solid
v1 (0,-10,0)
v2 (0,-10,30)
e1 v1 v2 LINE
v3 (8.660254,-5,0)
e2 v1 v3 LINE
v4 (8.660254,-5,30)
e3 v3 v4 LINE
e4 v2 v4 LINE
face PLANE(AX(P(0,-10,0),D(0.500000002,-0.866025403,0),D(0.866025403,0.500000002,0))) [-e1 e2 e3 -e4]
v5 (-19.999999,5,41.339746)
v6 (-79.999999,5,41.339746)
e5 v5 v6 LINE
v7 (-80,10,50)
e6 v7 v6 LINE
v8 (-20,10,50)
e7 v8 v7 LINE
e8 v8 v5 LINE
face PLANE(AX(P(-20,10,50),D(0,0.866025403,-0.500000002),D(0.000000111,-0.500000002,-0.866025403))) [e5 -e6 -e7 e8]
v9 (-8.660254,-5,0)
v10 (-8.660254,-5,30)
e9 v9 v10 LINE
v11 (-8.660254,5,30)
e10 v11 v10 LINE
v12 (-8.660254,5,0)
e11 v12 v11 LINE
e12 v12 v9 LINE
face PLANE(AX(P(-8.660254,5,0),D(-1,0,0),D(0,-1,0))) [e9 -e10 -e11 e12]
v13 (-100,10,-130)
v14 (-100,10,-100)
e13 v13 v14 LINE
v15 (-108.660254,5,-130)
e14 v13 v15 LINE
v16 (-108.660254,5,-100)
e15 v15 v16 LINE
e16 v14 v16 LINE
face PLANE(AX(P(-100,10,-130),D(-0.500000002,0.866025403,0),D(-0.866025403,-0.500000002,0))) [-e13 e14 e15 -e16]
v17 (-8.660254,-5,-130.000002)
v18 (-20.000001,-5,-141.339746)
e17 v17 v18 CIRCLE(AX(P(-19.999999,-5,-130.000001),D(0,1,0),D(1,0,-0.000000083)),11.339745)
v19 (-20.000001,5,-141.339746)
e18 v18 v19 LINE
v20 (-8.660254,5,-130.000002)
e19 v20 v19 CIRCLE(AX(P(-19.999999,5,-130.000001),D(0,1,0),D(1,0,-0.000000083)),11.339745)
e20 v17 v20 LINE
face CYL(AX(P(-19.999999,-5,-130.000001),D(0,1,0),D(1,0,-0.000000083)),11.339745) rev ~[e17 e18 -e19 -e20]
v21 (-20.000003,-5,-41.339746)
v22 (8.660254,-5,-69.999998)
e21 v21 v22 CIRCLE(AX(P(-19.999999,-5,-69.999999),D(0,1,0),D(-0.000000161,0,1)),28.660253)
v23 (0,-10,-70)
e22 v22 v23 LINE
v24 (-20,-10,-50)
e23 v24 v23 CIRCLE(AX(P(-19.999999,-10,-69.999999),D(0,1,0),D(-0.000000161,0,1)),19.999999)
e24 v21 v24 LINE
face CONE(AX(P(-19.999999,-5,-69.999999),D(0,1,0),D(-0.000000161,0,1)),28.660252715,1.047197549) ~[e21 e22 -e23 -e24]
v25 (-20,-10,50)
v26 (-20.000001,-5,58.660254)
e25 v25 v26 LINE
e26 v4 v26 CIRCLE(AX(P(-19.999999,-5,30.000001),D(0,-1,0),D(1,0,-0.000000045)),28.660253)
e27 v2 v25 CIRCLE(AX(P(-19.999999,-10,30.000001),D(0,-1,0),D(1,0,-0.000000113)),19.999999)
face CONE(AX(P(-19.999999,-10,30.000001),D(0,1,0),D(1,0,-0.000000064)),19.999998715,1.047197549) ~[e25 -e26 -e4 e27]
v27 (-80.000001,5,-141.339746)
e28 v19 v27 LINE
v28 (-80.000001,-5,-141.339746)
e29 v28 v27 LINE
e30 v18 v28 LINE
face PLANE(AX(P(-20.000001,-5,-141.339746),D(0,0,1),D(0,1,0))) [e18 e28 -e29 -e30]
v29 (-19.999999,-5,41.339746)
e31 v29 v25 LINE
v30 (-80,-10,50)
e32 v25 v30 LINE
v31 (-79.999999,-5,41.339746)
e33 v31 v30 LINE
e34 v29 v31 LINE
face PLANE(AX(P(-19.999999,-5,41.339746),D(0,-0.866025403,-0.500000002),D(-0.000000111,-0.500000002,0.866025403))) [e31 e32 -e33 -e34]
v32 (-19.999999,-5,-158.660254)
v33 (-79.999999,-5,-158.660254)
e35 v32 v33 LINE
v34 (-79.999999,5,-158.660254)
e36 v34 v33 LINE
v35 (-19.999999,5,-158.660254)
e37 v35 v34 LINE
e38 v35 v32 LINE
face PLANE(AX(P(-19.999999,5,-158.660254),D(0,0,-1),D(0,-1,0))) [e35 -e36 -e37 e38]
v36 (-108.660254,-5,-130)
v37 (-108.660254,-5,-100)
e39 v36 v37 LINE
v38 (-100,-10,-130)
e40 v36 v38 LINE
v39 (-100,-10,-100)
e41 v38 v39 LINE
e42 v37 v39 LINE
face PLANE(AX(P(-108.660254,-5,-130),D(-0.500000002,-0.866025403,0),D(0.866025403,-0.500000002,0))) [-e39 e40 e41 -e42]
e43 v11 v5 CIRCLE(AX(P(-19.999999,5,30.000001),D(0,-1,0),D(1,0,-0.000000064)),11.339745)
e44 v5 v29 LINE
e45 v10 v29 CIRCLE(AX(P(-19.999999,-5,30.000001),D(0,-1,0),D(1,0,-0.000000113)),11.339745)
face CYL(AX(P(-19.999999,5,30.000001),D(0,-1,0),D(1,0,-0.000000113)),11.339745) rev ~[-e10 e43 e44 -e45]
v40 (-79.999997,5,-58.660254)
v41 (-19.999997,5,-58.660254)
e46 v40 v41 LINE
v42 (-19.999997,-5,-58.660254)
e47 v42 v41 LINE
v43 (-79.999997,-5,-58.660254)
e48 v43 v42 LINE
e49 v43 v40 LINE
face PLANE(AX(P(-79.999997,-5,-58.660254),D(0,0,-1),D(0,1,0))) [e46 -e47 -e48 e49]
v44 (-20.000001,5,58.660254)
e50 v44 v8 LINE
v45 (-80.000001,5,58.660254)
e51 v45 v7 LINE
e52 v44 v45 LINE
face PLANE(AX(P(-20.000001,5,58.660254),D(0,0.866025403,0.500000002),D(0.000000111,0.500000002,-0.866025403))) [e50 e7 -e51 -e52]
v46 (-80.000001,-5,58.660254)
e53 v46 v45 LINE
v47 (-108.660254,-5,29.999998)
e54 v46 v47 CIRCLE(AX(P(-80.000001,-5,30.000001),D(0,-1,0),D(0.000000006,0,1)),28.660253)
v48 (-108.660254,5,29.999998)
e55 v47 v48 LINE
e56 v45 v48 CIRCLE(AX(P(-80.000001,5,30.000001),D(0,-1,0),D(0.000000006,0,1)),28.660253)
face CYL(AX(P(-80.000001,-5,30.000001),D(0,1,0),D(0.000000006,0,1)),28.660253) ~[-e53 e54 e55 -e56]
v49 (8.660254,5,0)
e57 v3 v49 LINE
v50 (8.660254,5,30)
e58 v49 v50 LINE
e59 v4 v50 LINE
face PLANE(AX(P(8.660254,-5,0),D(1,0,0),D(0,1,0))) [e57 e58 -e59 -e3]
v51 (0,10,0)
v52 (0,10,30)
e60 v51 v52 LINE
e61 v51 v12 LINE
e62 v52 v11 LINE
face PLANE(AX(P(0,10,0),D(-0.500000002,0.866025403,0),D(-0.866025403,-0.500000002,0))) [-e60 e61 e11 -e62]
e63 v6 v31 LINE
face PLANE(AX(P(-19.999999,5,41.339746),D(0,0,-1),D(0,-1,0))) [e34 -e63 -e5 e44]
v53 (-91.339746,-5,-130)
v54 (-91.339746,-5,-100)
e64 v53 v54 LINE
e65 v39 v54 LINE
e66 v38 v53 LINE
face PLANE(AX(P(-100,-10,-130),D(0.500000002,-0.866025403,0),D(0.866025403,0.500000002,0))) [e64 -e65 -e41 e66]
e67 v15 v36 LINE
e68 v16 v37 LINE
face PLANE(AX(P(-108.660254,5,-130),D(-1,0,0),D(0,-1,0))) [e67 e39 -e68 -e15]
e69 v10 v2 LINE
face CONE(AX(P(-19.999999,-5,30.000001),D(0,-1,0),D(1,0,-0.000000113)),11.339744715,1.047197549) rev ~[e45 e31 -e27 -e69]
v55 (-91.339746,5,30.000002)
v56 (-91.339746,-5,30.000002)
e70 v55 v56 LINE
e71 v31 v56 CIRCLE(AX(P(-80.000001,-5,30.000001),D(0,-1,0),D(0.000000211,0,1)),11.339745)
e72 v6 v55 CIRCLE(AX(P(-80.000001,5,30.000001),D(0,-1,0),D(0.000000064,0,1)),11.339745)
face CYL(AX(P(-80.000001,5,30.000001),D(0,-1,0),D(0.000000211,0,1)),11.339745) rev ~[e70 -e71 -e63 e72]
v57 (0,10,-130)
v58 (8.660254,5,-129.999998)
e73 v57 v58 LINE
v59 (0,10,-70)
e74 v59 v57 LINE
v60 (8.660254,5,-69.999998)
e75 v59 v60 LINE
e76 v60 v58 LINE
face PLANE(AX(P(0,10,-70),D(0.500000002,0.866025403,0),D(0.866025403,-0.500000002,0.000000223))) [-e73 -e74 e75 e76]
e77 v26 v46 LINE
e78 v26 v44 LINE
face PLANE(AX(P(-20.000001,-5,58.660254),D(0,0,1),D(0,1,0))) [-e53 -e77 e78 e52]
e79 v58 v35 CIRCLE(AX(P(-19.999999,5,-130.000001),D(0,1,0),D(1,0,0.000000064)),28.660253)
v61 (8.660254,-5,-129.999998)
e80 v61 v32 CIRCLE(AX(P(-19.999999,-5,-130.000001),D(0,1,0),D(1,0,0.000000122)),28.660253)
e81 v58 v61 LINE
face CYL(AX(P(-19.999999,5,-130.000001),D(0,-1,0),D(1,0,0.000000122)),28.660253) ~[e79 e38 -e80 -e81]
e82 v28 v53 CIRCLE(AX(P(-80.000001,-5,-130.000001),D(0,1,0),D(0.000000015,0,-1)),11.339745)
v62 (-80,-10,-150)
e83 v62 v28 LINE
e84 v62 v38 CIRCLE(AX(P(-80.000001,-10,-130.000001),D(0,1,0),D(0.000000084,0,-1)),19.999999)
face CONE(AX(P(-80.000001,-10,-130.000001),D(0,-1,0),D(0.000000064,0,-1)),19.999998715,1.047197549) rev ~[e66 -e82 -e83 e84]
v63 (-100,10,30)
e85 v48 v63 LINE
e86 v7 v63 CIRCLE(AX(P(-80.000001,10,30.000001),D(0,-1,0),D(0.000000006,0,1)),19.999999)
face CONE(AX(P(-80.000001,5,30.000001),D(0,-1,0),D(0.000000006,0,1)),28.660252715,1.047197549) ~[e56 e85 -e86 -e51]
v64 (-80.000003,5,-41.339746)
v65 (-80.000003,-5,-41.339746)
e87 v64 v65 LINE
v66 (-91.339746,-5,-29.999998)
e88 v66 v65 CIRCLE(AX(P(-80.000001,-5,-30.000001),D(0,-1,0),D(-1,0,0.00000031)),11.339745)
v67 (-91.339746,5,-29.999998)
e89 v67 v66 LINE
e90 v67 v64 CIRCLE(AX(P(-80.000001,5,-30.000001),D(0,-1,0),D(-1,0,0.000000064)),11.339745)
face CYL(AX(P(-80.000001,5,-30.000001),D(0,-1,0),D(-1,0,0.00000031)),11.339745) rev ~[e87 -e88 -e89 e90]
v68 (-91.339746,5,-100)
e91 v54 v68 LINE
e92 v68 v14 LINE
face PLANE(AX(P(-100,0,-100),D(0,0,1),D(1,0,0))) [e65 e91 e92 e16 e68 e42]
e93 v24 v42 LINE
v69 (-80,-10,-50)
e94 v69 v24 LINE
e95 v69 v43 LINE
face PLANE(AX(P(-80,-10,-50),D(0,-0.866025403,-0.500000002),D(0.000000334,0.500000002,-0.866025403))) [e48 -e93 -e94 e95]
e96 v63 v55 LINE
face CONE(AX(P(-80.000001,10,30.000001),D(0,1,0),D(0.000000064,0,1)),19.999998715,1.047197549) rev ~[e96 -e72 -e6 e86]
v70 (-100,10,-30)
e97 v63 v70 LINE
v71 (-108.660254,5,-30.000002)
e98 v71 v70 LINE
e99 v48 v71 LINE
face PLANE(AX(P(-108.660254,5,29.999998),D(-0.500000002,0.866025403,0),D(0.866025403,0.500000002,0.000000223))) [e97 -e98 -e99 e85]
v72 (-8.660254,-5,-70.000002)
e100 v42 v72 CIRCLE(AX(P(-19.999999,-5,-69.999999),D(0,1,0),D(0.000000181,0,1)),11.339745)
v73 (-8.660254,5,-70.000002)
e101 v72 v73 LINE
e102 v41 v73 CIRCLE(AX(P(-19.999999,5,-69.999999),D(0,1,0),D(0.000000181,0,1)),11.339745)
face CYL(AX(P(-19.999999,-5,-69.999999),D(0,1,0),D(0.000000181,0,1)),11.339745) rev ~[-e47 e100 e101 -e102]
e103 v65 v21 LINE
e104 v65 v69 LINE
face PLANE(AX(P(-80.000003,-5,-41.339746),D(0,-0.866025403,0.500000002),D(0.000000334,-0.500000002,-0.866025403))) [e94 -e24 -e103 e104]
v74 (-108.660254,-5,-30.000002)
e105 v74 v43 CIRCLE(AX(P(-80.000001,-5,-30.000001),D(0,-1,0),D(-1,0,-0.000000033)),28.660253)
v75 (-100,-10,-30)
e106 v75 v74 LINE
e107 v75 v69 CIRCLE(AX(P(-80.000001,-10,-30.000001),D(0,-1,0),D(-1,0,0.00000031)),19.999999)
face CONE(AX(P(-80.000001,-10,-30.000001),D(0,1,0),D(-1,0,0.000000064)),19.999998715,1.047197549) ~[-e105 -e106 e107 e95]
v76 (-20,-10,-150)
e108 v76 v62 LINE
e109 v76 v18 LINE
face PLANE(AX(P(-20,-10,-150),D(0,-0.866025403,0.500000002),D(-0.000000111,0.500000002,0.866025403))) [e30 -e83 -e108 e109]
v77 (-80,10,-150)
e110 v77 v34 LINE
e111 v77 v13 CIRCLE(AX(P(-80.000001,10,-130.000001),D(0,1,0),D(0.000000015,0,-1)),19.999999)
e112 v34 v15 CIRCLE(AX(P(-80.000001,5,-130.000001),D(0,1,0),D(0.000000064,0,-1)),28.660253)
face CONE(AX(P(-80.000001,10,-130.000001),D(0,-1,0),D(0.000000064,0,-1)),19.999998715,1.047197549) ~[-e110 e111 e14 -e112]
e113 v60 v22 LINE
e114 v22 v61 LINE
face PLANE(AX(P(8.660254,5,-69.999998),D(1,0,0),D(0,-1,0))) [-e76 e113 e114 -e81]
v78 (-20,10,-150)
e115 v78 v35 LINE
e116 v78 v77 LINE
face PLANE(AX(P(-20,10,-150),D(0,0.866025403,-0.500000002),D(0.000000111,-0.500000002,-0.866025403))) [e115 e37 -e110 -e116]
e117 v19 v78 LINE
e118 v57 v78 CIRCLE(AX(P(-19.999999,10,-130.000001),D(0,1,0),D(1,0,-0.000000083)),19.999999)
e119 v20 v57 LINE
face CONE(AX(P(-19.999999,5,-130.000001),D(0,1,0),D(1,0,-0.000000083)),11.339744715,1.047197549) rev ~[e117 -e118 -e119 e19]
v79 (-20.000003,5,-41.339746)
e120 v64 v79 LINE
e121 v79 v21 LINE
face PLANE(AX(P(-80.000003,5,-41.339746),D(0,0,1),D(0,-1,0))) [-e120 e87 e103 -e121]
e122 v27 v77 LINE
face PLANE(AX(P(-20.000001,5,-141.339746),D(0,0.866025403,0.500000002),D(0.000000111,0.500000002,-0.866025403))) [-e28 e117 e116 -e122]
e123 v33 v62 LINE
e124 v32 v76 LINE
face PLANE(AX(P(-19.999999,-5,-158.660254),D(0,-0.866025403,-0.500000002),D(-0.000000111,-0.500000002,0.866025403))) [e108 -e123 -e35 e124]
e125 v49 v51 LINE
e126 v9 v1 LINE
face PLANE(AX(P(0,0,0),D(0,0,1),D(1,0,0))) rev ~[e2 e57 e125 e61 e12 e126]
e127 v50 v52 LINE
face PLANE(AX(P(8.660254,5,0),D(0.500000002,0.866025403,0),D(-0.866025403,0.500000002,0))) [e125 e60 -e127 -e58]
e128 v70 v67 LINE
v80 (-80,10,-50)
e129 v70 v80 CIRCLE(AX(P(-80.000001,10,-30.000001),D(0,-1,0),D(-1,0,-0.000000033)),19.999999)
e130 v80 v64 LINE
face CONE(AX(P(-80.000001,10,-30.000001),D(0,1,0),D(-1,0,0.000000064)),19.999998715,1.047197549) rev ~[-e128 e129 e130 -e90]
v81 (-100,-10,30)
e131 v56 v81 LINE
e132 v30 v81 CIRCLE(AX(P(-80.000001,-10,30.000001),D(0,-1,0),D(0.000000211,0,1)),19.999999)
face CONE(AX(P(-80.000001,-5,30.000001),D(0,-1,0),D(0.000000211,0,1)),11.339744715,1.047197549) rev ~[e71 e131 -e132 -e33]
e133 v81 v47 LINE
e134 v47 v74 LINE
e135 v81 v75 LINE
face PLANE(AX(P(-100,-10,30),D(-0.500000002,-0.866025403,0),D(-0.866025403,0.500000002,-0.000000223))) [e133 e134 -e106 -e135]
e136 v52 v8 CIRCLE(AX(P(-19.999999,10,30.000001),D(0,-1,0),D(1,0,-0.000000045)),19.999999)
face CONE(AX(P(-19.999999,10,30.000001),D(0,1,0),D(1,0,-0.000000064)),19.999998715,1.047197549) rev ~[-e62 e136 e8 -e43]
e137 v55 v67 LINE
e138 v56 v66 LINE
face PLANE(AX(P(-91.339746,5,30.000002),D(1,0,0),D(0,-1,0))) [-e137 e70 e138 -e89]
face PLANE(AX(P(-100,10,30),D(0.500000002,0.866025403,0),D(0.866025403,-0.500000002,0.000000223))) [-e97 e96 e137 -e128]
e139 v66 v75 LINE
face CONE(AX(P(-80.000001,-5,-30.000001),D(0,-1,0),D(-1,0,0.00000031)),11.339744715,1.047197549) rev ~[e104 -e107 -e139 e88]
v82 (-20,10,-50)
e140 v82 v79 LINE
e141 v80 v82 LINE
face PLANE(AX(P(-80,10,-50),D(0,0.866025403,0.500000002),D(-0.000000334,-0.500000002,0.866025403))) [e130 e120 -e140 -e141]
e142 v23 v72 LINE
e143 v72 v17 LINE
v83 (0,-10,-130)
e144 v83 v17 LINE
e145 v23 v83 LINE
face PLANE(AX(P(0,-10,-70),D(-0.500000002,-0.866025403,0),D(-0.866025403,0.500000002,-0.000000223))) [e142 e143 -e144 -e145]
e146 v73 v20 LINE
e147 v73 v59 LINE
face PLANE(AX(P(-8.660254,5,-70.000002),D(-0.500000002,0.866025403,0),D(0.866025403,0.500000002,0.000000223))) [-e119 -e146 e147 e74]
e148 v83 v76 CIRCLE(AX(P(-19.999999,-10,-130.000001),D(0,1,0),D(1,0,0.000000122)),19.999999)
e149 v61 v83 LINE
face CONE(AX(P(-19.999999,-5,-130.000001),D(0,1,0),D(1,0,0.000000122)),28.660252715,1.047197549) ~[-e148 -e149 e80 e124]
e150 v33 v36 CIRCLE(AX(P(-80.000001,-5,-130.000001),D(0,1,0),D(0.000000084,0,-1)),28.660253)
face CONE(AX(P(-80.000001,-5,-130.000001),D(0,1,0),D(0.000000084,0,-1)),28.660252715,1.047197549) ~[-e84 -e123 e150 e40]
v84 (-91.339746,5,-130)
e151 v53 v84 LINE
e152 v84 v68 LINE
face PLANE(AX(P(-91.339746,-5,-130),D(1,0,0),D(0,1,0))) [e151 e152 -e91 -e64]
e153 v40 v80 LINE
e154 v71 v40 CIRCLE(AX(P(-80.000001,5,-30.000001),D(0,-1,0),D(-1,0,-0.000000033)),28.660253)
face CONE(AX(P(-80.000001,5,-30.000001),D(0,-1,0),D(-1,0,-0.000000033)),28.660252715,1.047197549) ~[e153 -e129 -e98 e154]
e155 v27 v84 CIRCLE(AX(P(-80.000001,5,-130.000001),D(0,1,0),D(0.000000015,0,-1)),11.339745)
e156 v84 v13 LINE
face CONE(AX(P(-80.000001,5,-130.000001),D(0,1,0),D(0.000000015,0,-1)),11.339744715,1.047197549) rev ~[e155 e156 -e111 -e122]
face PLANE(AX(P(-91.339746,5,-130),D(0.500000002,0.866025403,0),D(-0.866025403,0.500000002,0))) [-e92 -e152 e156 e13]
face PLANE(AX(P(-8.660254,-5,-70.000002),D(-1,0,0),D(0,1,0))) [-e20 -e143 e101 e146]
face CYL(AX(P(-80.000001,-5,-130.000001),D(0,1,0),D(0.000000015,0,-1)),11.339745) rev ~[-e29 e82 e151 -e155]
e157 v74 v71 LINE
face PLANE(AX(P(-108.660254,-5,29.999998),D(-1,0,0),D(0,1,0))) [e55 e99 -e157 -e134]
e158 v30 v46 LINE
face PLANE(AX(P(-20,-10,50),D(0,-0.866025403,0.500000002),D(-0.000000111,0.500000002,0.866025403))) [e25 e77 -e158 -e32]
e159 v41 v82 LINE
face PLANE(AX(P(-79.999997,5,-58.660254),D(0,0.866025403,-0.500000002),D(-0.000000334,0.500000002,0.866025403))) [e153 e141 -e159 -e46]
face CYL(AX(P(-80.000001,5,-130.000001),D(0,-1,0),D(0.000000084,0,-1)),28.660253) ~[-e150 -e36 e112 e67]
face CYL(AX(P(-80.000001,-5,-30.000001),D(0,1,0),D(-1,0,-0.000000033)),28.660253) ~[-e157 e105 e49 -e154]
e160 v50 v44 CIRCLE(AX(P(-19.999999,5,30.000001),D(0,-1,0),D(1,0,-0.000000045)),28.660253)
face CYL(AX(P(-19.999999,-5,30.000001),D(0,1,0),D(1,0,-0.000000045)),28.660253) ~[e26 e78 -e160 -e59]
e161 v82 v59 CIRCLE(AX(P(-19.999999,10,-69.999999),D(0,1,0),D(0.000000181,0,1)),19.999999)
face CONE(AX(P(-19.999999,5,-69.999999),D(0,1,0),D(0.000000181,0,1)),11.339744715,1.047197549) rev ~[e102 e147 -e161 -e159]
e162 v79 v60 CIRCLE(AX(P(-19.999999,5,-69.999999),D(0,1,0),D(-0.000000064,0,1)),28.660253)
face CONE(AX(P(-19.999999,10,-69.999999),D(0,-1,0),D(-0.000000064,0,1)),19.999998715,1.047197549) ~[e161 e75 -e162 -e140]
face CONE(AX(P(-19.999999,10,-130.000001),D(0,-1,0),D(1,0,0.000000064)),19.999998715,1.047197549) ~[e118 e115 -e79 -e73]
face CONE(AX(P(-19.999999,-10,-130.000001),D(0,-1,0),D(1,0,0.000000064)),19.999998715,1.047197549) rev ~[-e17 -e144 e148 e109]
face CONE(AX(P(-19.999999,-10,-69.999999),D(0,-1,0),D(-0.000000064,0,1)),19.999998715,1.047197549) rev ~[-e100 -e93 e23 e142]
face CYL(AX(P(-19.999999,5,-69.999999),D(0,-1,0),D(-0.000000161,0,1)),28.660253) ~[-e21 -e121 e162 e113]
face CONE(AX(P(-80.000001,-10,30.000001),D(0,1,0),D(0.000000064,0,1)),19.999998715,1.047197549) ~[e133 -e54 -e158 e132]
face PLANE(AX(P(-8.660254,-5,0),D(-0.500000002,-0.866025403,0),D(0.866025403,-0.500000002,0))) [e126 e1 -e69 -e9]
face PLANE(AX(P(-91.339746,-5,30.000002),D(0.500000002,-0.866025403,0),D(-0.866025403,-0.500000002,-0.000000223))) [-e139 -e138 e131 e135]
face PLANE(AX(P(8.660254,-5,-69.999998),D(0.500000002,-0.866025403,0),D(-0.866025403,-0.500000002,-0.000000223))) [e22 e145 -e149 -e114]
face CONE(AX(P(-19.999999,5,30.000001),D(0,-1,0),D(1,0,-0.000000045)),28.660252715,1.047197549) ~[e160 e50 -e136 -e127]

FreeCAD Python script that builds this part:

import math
import FreeCAD as App
import Part
import Sketcher

V = App.Vector
Q = App.Units.Quantity


def add_polygon(sketch, points):
    """Adds a closed chain of lines whose ends are joined by coincident constraints."""
    first, n = sketch.GeometryCount, len(points)
    for a, b in zip(points, points[1:] + points[:1]):
        sketch.addGeometry(Part.LineSegment(App.Vector(*a, 0), App.Vector(*b, 0)), False)
    for i in range(n):
        sketch.addConstraint(Sketcher.Constraint("Coincident", first + i, 2, first + (i + 1) % n, 1))

doc = App.newDocument("Part")
body = doc.addObject("PartDesign::Body", "Body")

# Sketch on XY plane
sketch1 = doc.addObject("Sketcher::SketchObject", "Sketch")
body.addObject(sketch1)
sketch1.AttachmentSupport = (doc.XY_Plane, [""])
sketch1.MapMode = "FlatFace"
add_polygon(sketch1, [(9, -5), (9, 5), (0, 10), (-9, 5), (-9, -5), (0, -10)])  # lines 0-5
sketch1.addConstraint(Sketcher.Constraint("Vertical", 0))
sketch1.addConstraint(Sketcher.Constraint("Vertical", 3))
sketch1.addConstraint(Sketcher.Constraint("Symmetric", 0, 2, 3, 2, -1, 1))
sketch1.addConstraint(Sketcher.Constraint("Symmetric", 1, 2, 4, 2, -1, 1))
sketch1.addConstraint(Sketcher.Constraint("PointOnObject", 1, 2, -2))
sketch1.addConstraint(Sketcher.Constraint("Parallel", 2, 5))
sketch1.addConstraint(Sketcher.Constraint("Horizontal", 0, 2, 2, 2))
sketch1.addConstraint(Sketcher.Constraint("DistanceY", 0, 1, 0, 2, Q("10 mm")))
sketch1.addConstraint(Sketcher.Constraint("Angle", 1, Q("150 deg")))
sketch1.addConstraint(Sketcher.Constraint("Distance", 1, Q("10 mm")))

# Sketch on XZ plane
sketch2 = doc.addObject("Sketcher::SketchObject", "Sketch001")
body.addObject(sketch2)
sketch2.AttachmentSupport = (doc.XZ_Plane, [""])
sketch2.MapMode = "FlatFace"
sketch2.addGeometry(Part.LineSegment(V(0, 0, 0), V(0, 30, 0)), False)
sketch2.addGeometry(Part.ArcOfCircle(Part.Circle(V(-20, 30, 0), V(0, 0, 1), 20), math.radians(0), math.radians(90)), False)
sketch2.addGeometry(Part.LineSegment(V(-20, 50, 0), V(-80, 50, 0)), False)
sketch2.addGeometry(Part.ArcOfCircle(Part.Circle(V(-80, 30, 0), V(0, 0, 1), 20), math.radians(90), math.radians(180)), False)
sketch2.addGeometry(Part.LineSegment(V(-100, 30, 0), V(-100, -30, 0)), False)
sketch2.addGeometry(Part.ArcOfCircle(Part.Circle(V(-80, -30, 0), V(0, 0, 1), 20), math.radians(180), math.radians(270)), False)
sketch2.addGeometry(Part.LineSegment(V(-80, -50, 0), V(-20, -50, 0)), False)
sketch2.addGeometry(Part.ArcOfCircle(Part.Circle(V(-20, -70, 0), V(0, 0, 1), 20), math.radians(0), math.radians(90)), False)
sketch2.addGeometry(Part.LineSegment(V(0, -70, 0), V(0, -130, 0)), False)
sketch2.addGeometry(Part.ArcOfCircle(Part.Circle(V(-20, -130, 0), V(0, 0, 1), 20), math.radians(-90), math.radians(0)), False)
sketch2.addGeometry(Part.LineSegment(V(-20, -150, 0), V(-80, -150, 0)), False)
sketch2.addGeometry(Part.ArcOfCircle(Part.Circle(V(-80, -130, 0), V(0, 0, 1), 20), math.radians(180), math.radians(270)), False)
sketch2.addGeometry(Part.LineSegment(V(-100, -130, 0), V(-100, -100, 0)), False)
sketch2.addConstraint(Sketcher.Constraint("Tangent", 0, 2, 1, 1))
sketch2.addConstraint(Sketcher.Constraint("Tangent", 1, 2, 2, 1))
sketch2.addConstraint(Sketcher.Constraint("Tangent", 2, 2, 3, 1))
sketch2.addConstraint(Sketcher.Constraint("Tangent", 3, 2, 4, 1))
sketch2.addConstraint(Sketcher.Constraint("Tangent", 4, 2, 5, 1))
sketch2.addConstraint(Sketcher.Constraint("Tangent", 5, 2, 6, 1))
sketch2.addConstraint(Sketcher.Constraint("Tangent", 6, 2, 7, 2))
sketch2.addConstraint(Sketcher.Constraint("Tangent", 7, 1, 8, 1))
sketch2.addConstraint(Sketcher.Constraint("Tangent", 8, 2, 9, 2))
sketch2.addConstraint(Sketcher.Constraint("Tangent", 9, 1, 10, 1))
sketch2.addConstraint(Sketcher.Constraint("Tangent", 10, 2, 11, 2))
sketch2.addConstraint(Sketcher.Constraint("Tangent", 11, 1, 12, 1))
sketch2.addConstraint(Sketcher.Constraint("Vertical", 0))
sketch2.addConstraint(Sketcher.Constraint("Horizontal", 2))
sketch2.addConstraint(Sketcher.Constraint("Vertical", 4))
sketch2.addConstraint(Sketcher.Constraint("Horizontal", 6))
sketch2.addConstraint(Sketcher.Constraint("Vertical", 8))
sketch2.addConstraint(Sketcher.Constraint("Horizontal", 10))
sketch2.addConstraint(Sketcher.Constraint("Vertical", 12))
sketch2.addConstraint(Sketcher.Constraint("Coincident", 0, 1, -1, 1))
sketch2.addConstraint(Sketcher.Constraint("Equal", 1, 3))
sketch2.addConstraint(Sketcher.Constraint("Equal", 3, 5))
sketch2.addConstraint(Sketcher.Constraint("Equal", 5, 7))
sketch2.addConstraint(Sketcher.Constraint("Equal", 7, 9))
sketch2.addConstraint(Sketcher.Constraint("Equal", 9, 11))
sketch2.addConstraint(Sketcher.Constraint("Symmetric", 1, 2, 6, 2, -1))
sketch2.addConstraint(Sketcher.Constraint("Vertical", 5, 3, 11, 3))
sketch2.addConstraint(Sketcher.Constraint("Equal", 10, 4))
sketch2.addConstraint(Sketcher.Constraint("Equal", 4, 8))
sketch2.addConstraint(Sketcher.Constraint("Equal", 0, 12))
sketch2.addConstraint(Sketcher.Constraint("Radius", 1, Q("19.999999 mm")))
sketch2.addConstraint(Sketcher.Constraint("DistanceX", 2, 2, 2, 1, Q("60 mm")))
doc.recompute()

additivepipe = doc.addObject("PartDesign::AdditivePipe", "AdditivePipe")
body.addObject(additivepipe)
additivepipe.Profile = sketch1
additivepipe.Spine = (sketch2, ["Edge1", "Edge2", "Edge3", "Edge4", "Edge5", "Edge6", "Edge7", "Edge8", "Edge9", "Edge10", "Edge11", "Edge12", "Edge13"])

doc.recompute()
